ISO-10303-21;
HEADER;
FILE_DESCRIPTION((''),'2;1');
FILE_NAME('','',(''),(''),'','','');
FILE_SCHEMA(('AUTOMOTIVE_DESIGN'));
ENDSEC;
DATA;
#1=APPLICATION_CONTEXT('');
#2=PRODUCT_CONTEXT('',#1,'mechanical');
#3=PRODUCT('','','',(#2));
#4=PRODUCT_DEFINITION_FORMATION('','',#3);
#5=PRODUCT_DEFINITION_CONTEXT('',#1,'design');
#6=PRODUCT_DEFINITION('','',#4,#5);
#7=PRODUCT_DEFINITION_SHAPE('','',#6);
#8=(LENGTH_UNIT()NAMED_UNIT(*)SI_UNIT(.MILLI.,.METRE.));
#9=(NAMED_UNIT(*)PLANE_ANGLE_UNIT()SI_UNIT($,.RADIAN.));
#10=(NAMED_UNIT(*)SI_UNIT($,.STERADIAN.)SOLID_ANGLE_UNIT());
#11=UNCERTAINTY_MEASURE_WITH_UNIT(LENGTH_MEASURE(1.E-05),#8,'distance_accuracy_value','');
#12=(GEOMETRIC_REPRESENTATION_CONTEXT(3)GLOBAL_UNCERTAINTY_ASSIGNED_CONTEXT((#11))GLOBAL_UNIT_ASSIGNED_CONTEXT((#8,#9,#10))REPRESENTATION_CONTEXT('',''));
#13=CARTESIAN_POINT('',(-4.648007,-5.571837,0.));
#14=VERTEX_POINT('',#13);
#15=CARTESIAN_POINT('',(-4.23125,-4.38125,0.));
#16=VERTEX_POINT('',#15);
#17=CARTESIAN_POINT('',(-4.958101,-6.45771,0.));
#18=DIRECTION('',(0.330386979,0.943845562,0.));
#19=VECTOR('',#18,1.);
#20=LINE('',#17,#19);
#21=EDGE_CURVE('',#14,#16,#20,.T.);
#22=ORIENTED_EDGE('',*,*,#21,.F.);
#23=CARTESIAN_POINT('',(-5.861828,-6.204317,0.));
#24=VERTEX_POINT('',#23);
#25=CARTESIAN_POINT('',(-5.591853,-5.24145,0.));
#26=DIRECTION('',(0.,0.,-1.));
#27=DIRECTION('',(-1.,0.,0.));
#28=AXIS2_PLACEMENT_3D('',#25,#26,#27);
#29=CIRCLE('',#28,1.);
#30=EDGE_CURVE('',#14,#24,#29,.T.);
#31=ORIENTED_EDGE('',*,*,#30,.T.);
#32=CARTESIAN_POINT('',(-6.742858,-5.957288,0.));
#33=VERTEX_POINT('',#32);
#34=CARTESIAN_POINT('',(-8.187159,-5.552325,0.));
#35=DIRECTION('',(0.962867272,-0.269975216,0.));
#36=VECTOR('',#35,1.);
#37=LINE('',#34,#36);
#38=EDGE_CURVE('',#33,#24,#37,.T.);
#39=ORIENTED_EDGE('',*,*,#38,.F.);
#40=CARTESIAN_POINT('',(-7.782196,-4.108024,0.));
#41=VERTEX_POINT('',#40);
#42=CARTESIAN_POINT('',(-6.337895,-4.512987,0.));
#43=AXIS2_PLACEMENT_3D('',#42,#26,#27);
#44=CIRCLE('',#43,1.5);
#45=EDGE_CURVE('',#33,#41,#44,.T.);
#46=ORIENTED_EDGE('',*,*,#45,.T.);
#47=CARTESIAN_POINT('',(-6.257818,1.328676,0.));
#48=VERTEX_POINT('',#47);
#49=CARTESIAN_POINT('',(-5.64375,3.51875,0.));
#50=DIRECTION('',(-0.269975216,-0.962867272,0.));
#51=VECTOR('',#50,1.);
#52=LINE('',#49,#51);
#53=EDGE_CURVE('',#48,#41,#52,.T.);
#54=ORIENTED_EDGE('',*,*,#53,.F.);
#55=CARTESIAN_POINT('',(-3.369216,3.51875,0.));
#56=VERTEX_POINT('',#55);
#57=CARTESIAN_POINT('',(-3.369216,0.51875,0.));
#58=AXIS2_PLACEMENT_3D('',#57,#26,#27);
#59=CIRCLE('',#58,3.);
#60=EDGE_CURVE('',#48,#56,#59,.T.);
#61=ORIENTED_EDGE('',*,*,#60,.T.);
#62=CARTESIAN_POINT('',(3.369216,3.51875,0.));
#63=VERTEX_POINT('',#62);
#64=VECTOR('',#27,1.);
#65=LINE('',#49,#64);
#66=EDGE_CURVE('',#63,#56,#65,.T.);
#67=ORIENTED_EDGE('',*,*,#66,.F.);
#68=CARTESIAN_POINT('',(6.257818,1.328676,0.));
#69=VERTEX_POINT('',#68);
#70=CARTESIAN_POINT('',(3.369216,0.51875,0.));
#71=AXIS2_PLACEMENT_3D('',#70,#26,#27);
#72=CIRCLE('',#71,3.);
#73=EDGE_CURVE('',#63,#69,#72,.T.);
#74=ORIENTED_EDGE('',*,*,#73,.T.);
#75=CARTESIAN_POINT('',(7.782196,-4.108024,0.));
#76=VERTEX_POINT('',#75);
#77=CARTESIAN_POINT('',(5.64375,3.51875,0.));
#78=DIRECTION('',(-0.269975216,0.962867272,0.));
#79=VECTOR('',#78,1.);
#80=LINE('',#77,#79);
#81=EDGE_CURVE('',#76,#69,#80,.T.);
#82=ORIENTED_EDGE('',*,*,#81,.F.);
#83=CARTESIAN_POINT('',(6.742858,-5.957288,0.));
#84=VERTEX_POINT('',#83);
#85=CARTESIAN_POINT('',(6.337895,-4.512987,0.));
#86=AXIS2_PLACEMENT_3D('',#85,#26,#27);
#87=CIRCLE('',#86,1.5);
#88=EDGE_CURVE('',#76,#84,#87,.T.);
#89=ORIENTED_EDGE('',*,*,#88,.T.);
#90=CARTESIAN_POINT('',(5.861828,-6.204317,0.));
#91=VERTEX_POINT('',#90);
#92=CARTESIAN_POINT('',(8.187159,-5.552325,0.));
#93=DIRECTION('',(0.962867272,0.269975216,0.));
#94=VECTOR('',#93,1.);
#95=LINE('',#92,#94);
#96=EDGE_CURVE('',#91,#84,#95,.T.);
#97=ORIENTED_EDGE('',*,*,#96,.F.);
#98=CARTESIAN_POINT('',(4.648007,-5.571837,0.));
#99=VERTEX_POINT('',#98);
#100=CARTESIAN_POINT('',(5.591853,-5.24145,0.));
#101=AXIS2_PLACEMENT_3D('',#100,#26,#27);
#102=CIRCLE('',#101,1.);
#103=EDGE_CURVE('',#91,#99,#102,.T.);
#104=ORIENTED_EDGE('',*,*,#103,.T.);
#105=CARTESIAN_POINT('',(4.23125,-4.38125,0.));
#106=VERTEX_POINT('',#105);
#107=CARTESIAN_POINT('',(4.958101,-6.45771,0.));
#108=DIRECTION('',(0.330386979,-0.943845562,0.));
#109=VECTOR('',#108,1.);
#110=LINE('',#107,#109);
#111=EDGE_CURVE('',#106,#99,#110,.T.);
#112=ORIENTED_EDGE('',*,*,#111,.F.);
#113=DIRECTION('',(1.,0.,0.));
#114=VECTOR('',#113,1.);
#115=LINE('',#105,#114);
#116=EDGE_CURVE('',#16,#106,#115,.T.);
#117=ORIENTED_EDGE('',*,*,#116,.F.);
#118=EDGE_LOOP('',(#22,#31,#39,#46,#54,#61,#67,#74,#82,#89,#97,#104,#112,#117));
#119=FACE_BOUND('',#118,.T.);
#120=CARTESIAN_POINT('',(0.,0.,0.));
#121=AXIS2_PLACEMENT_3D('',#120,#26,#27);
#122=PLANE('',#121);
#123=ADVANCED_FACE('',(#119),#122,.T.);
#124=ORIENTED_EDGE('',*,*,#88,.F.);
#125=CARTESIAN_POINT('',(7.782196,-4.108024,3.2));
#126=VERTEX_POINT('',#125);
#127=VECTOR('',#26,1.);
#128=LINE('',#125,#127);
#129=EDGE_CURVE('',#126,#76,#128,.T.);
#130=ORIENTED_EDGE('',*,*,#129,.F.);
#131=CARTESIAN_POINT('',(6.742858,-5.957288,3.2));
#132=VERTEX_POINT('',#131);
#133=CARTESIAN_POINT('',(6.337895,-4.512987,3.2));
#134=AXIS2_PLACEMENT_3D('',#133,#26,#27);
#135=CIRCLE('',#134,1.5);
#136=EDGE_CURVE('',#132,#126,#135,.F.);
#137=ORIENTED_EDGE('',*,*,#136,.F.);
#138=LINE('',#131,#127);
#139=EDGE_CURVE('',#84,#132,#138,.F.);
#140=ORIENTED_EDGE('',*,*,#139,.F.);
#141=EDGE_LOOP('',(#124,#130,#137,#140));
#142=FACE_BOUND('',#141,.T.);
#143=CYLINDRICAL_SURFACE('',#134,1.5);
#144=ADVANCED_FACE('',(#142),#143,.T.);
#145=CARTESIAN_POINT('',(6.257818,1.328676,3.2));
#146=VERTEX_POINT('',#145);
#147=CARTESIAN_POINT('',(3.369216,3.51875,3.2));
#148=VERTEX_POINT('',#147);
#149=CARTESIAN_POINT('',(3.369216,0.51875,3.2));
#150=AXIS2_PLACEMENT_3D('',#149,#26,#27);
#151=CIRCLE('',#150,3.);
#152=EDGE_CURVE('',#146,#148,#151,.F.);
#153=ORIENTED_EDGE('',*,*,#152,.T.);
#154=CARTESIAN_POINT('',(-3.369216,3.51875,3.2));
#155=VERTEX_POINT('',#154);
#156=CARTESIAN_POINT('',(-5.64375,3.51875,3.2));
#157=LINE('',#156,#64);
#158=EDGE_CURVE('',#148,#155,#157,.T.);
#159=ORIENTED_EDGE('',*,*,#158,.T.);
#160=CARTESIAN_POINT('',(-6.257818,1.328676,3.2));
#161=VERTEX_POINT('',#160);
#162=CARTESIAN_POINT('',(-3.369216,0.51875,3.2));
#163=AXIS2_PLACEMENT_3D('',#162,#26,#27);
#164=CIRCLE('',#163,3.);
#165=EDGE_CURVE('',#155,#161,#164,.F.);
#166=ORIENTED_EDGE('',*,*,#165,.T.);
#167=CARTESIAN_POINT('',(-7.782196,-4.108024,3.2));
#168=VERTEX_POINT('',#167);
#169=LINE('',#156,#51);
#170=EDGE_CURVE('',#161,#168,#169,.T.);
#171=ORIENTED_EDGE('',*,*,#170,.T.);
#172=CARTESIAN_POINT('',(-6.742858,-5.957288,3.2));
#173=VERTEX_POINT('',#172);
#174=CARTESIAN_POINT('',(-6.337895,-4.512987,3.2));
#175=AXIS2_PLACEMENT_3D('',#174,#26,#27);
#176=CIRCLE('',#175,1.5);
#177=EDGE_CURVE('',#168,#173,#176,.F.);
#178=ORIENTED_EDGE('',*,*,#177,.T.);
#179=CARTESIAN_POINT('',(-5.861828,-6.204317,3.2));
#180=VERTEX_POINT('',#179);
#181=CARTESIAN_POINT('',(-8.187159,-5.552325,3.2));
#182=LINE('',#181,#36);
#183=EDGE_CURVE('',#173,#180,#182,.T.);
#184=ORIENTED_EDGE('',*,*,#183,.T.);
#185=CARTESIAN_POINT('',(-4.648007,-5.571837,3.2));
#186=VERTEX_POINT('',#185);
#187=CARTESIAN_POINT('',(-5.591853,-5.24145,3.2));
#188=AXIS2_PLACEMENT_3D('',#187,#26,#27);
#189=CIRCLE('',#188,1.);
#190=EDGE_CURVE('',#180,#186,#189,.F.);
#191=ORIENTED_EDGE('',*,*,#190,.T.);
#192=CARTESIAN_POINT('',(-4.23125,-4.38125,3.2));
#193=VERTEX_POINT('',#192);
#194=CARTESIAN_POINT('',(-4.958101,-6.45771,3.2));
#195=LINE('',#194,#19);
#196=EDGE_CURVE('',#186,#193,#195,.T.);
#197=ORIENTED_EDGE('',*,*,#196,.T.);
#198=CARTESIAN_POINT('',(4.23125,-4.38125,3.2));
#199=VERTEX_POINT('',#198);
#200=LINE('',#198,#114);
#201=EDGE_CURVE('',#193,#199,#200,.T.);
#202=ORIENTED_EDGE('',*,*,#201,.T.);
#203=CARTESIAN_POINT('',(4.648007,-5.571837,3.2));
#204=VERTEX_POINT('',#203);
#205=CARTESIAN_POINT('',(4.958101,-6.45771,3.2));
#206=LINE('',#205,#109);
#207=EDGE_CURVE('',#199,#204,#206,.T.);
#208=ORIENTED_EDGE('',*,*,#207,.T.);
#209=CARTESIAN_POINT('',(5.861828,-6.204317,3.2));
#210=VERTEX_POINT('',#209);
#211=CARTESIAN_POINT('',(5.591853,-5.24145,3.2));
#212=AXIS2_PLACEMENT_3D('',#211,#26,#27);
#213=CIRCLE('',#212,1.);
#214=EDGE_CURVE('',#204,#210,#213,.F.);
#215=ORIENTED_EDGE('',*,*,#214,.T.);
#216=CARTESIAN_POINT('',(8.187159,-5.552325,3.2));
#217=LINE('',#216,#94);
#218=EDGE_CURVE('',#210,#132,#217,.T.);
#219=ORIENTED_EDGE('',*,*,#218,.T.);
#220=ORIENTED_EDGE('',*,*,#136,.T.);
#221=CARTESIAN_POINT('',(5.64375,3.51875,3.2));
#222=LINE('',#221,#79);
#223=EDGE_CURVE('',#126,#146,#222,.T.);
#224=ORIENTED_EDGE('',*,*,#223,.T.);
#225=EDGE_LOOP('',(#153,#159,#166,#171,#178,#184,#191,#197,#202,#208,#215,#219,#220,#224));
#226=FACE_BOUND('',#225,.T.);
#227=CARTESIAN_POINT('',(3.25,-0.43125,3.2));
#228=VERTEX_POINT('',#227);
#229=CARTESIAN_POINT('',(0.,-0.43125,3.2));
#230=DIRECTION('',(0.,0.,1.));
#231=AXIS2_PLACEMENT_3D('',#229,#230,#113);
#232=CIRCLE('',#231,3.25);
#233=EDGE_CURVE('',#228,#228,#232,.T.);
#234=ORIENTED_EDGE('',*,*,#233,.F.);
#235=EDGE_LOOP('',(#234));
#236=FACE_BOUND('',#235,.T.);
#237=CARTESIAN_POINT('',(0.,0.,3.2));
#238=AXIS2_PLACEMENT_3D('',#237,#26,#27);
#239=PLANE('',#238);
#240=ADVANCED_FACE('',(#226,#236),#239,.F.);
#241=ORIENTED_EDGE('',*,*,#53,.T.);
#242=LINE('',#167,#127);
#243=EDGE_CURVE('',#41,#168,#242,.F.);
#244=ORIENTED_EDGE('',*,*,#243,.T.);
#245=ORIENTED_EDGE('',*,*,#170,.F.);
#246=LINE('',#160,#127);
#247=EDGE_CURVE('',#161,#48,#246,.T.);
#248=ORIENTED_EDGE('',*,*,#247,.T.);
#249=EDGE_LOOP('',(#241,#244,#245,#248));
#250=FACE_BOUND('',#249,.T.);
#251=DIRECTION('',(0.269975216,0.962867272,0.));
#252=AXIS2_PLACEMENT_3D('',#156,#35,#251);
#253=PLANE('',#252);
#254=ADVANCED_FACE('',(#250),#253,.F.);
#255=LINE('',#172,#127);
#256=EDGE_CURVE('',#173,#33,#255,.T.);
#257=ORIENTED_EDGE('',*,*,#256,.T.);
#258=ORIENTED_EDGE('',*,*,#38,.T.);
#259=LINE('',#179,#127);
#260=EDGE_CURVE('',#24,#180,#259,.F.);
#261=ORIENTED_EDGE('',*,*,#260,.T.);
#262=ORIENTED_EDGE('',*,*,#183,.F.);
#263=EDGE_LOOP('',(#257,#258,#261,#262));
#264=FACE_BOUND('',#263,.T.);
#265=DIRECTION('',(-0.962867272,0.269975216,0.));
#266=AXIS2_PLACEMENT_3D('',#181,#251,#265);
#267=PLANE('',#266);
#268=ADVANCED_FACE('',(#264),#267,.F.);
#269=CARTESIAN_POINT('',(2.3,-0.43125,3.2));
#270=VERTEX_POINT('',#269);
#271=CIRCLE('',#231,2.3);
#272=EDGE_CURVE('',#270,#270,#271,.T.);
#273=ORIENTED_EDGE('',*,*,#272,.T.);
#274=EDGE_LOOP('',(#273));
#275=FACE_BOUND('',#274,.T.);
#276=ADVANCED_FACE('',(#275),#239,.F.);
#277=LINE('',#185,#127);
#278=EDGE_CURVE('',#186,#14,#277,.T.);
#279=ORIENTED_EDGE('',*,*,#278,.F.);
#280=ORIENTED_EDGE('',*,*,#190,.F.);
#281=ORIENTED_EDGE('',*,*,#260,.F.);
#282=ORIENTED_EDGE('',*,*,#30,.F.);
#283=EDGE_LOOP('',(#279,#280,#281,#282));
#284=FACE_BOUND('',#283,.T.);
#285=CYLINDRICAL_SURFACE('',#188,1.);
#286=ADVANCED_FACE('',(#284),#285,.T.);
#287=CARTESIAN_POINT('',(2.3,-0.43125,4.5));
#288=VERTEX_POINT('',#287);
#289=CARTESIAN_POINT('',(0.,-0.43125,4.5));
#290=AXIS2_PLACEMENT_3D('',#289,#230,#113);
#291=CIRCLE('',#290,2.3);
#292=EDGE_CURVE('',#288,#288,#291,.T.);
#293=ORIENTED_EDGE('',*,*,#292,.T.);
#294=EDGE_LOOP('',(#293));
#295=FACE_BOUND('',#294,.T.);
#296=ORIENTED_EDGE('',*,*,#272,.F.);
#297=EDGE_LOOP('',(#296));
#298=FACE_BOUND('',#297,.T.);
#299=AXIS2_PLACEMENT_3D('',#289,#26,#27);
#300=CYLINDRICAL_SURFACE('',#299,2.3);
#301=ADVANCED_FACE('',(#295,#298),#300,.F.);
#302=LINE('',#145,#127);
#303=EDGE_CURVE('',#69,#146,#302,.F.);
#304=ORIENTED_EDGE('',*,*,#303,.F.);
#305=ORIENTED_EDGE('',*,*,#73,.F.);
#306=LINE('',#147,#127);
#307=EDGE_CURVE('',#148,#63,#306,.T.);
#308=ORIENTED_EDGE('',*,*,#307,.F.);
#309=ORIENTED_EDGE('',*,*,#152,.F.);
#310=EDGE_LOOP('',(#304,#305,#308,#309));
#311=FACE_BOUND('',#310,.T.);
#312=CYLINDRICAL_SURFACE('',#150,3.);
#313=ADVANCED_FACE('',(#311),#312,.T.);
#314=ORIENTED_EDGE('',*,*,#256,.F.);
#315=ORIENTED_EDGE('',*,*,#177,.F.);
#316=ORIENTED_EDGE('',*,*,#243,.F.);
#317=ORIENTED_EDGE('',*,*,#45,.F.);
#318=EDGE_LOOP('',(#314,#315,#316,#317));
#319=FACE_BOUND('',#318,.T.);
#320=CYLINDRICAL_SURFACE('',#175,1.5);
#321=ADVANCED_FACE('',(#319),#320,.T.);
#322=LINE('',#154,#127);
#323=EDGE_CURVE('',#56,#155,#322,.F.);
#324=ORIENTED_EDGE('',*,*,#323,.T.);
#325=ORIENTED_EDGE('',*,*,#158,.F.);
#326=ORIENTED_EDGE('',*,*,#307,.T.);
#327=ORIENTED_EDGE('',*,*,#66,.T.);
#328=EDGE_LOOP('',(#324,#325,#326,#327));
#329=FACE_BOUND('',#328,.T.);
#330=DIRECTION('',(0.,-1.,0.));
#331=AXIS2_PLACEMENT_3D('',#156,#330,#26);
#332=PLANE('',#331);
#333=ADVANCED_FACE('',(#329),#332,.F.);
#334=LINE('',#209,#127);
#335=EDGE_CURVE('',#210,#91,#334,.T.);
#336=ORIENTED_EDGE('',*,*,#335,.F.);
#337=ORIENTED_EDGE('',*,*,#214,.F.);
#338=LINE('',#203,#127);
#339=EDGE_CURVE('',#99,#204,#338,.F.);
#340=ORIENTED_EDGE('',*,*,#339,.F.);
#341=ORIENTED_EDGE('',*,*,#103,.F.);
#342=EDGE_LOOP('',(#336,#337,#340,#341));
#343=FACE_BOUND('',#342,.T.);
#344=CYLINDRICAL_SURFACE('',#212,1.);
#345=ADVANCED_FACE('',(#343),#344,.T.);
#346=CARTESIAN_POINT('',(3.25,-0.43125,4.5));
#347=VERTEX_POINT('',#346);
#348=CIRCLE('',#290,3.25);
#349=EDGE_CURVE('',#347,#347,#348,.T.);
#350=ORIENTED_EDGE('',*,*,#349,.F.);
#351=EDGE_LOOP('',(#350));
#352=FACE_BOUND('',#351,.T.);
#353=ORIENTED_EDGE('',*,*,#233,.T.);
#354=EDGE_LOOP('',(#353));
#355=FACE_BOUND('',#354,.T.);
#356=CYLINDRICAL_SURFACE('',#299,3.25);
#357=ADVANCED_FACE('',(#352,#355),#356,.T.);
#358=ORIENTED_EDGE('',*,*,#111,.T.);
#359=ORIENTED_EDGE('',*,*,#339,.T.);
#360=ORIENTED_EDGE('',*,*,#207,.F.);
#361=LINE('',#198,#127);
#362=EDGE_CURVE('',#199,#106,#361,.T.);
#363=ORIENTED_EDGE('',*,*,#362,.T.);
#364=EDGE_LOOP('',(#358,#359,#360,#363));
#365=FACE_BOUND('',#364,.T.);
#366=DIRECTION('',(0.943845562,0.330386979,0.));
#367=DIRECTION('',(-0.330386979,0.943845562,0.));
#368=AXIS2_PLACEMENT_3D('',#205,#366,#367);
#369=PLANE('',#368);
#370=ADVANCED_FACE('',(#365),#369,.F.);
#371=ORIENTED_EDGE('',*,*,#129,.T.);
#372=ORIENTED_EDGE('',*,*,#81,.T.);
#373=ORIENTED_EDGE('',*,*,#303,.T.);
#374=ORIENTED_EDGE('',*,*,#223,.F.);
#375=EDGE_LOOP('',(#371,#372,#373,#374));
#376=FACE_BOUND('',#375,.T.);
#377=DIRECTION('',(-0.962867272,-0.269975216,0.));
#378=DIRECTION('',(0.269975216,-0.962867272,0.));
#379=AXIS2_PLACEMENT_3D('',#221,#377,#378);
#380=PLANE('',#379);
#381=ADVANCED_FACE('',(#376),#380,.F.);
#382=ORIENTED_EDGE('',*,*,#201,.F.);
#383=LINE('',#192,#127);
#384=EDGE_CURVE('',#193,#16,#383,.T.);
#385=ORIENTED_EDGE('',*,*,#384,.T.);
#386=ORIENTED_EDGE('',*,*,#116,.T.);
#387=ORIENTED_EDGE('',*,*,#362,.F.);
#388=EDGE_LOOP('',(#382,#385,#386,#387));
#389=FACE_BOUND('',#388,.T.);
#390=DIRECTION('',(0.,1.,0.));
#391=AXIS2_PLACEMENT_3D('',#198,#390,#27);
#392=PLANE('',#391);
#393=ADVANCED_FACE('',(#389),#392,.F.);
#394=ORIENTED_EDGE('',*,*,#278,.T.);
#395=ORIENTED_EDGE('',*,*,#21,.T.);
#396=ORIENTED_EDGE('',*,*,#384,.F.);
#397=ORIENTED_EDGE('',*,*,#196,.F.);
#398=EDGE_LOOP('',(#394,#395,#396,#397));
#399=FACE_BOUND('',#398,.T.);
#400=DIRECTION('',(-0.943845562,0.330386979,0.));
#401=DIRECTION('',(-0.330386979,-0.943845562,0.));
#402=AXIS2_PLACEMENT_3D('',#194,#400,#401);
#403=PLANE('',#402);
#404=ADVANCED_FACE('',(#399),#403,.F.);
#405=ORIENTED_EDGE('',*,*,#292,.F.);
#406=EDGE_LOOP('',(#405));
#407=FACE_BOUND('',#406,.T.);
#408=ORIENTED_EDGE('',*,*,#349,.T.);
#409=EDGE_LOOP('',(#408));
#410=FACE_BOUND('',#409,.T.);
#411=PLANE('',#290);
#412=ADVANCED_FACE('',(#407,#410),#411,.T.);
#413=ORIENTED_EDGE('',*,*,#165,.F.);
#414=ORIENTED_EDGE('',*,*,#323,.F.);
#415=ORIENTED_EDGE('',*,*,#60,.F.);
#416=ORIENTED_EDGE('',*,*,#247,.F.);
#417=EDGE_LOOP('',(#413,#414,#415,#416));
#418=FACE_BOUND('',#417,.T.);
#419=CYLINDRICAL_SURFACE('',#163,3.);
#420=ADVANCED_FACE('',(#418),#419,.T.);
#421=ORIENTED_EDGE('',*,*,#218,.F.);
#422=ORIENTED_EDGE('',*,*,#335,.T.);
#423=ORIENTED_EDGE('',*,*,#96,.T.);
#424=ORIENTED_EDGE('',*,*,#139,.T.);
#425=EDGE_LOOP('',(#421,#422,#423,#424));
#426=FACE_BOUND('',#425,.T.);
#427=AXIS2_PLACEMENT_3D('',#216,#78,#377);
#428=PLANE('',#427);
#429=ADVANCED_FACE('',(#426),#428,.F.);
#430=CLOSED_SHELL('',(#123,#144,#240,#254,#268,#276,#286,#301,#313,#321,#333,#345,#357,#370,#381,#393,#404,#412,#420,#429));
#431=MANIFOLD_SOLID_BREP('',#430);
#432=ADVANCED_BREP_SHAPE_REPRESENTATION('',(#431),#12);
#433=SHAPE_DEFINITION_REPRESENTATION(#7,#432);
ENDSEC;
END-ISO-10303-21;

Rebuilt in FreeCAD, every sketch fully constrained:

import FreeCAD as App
import Part
import Sketcher
from FreeCAD import Vector


def edges_at(feature, points):
    """Names of the edges that pass closest to the given points."""
    edges = feature.Shape.Edges
    near = lambda p: min(range(len(edges)), key=lambda i: edges[i].distToShape(Part.Vertex(*p))[0])
    return sorted({f"Edge{near(p) + 1}" for p in points})

doc = App.newDocument("Part")
body = doc.addObject("PartDesign::Body", "Body")

sketch1 = body.newObject("Sketcher::SketchObject", "Sketch")
sketch1.AttachmentSupport = (doc.getObject("XY_Plane"), [""])
sketch1.MapMode = "FlatFace"
sketch1.addGeometry([
    Part.LineSegment(Vector(5.6, 3.5, 0), Vector(-5.6, 3.5, 0)),
    Part.LineSegment(Vector(-5.6, 3.5, 0), Vector(-8.2, -5.6, 0)),
    Part.LineSegment(Vector(-8.2, -5.6, 0), Vector(-5, -6.5, 0)),
    Part.LineSegment(Vector(-5, -6.5, 0), Vector(-4.2, -4.4, 0)),
    Part.LineSegment(Vector(-4.2, -4.4, 0), Vector(4.2, -4.4, 0)),
    Part.LineSegment(Vector(4.2, -4.4, 0), Vector(5, -6.5, 0)),
    Part.LineSegment(Vector(5, -6.5, 0), Vector(8.2, -5.6, 0)),
    Part.LineSegment(Vector(8.2, -5.6, 0), Vector(5.6, 3.5, 0)),
], False)
sketch1.addConstraint([
    Sketcher.Constraint("Coincident", 0, 2, 1, 1),
    Sketcher.Constraint("Coincident", 1, 2, 2, 1),
    Sketcher.Constraint("Coincident", 2, 2, 3, 1),
    Sketcher.Constraint("Coincident", 3, 2, 4, 1),
    Sketcher.Constraint("Coincident", 4, 2, 5, 1),
    Sketcher.Constraint("Coincident", 5, 2, 6, 1),
    Sketcher.Constraint("Coincident", 6, 2, 7, 1),
    Sketcher.Constraint("Coincident", 7, 2, 0, 1),
    Sketcher.Constraint("Horizontal", 0),
    Sketcher.Constraint("Horizontal", 4),
    Sketcher.Constraint("Symmetric", 2, 2, 5, 2, -2),
    Sketcher.Constraint("Symmetric", 1, 2, 6, 2, -2),
    Sketcher.Constraint("Perpendicular", 1, 2),
    Sketcher.Constraint("Perpendicular", 6, 7),
    Sketcher.Constraint("Equal", 3, 5),
    Sketcher.Constraint("Distance", 3, 2.2),
    Sketcher.Constraint("DistanceY", 3, 2, 0, 2, 7.9),
    Sketcher.Constraint("DistanceX", 0, 2, 0, 1, 11.2875),
    Sketcher.Constraint("DistanceX", 4, 1, 4, 2, 8.4625),
    Sketcher.Constraint("Distance", 1, 9.420899),
    Sketcher.Constraint("DistanceX", 2, 2, -1, 1, 4.958101),
    Sketcher.Constraint("DistanceY", -1, 1, 0, 2, 3.51875),
])
pad1 = body.newObject("PartDesign::Pad", "Pad")
pad1.Profile = sketch1
pad1.Length = 3.2

sketch2 = body.newObject("Sketcher::SketchObject", "Sketch001")
sketch2.AttachmentSupport = (doc.getObject("XY_Plane"), [""])
sketch2.MapMode = "FlatFace"
sketch2.AttachmentOffset = App.Placement(Vector(0, 0, 3.2), App.Rotation())
sketch2.addGeometry([
    Part.Circle(Vector(0, -0.4, 0), Vector(0, 0, 1), 3.2),
    Part.Circle(Vector(0, -0.4, 0), Vector(0, 0, 1), 2.3),
], False)
sketch2.addConstraint([
    Sketcher.Constraint("Coincident", 1, 3, 0, 3),
    Sketcher.Constraint("PointOnObject", 0, 3, -2),
    Sketcher.Constraint("Diameter", 0, 6.5),
    Sketcher.Constraint("Diameter", 1, 4.6),
    Sketcher.Constraint("DistanceY", 0, 3, -1, 1, 0.43125),
])
pad2 = body.newObject("PartDesign::Pad", "Pad001")
pad2.Profile = sketch2
pad2.Length = 1.3
doc.recompute()

fillet = body.newObject("PartDesign::Fillet", "Fillet")
fillet.Base = (pad2, edges_at(pad2, [(-5.644, 3.519, 1.6), (5.644, 3.519, 1.6)]))
fillet.Radius = 3
doc.recompute()

fillet2 = body.newObject("PartDesign::Fillet", "Fillet001")
fillet2.Base = (fillet, edges_at(fillet, [(8.187, -5.552, 1.6), (-8.187, -5.552, 1.6)]))
fillet2.Radius = 1.5
doc.recompute()

fillet3 = body.newObject("PartDesign::Fillet", "Fillet002")
fillet3.Base = (fillet2, edges_at(fillet2, [(4.958, -6.458, 1.6), (-4.958, -6.458, 1.6)]))
fillet3.Radius = 1

doc.recompute()
